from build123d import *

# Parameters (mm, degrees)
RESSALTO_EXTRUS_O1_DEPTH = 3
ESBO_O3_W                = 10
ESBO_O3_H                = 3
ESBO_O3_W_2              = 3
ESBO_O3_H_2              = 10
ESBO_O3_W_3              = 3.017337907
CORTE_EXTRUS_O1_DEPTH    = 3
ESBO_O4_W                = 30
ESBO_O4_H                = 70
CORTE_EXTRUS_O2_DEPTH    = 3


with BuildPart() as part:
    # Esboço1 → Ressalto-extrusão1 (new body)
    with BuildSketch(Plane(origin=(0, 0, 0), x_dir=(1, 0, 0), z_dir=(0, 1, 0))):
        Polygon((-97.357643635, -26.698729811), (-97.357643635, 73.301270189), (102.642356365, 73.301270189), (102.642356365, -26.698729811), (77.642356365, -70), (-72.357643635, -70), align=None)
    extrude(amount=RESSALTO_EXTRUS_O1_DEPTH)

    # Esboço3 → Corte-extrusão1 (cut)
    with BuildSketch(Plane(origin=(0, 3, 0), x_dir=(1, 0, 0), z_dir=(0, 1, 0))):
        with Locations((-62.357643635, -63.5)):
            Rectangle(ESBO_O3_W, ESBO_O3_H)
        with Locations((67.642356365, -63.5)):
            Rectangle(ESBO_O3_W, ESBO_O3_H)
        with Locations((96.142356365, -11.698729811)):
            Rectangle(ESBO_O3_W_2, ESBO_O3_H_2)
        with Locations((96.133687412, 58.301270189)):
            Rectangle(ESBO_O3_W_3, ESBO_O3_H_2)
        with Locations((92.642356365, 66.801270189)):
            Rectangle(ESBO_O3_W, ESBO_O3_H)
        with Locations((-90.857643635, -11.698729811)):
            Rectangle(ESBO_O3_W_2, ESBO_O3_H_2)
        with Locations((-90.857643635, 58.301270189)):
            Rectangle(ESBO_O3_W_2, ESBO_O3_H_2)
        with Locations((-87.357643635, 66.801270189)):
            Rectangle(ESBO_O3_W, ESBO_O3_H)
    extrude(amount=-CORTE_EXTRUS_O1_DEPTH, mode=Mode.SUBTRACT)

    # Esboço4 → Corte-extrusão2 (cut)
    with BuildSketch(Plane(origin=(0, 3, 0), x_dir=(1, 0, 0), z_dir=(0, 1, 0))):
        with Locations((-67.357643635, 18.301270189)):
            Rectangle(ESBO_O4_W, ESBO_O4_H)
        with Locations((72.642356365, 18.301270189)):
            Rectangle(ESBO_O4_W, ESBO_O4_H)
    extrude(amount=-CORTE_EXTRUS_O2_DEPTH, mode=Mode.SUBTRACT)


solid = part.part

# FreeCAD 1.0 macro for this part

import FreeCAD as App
import Part
import Sketcher
from FreeCAD import Vector
Q = App.Units.Quantity


def add_polygon(sketch, points):
    """Adds a closed chain of lines whose ends are joined by coincident constraints."""
    first, n = sketch.GeometryCount, len(points)
    for a, b in zip(points, points[1:] + points[:1]):
        sketch.addGeometry(Part.LineSegment(App.Vector(*a, 0), App.Vector(*b, 0)), False)
    for i in range(n):
        sketch.addConstraint(Sketcher.Constraint("Coincident", first + i, 2, first + (i + 1) % n, 1))

doc = App.newDocument("Part")
body = doc.addObject("PartDesign::Body", "Body")

# Sketch on XZ plane
sketch1 = body.newObject("Sketcher::SketchObject", "Sketch")
sketch1.AttachmentSupport = (doc.getObject("XZ_Plane"), [""])
sketch1.MapMode = "FlatFace"
add_polygon(sketch1, [(-97, -73), (-97, 27), (-72, 70), (78, 70), (103, 27), (103, -73)])  # lines 0-5
sketch1.addConstraint([
    Sketcher.Constraint("Vertical", 0),
    Sketcher.Constraint("Horizontal", 2),
    Sketcher.Constraint("Vertical", 4),
    Sketcher.Constraint("Horizontal", 5),
    Sketcher.Constraint("Horizontal", 0, 2, 3, 2),
    Sketcher.Constraint("Equal", 1, 3),
    Sketcher.Constraint("DistanceX", 2, 1, 2, 2, 150.0),
    Sketcher.Constraint("DistanceX", 5, 2, 5, 1, 200.0),
    Sketcher.Constraint("DistanceY", 0, 1, 0, 2, 100.0),
    Sketcher.Constraint("Angle", 1, Q("60 deg")),
    Sketcher.Constraint("DistanceY", -1, 1, 1, 2, 70.0),
    Sketcher.Constraint("DistanceX", 0, 2, -1, 1, 97.357644),
])
pad1 = body.newObject("PartDesign::Pad", "Pad")
pad1.Profile = sketch1
pad1.Length = 3
pad1.Reversed = True

# Sketch on XZ plane
sketch2 = body.newObject("Sketcher::SketchObject", "Sketch001")
sketch2.AttachmentSupport = (doc.getObject("XZ_Plane"), [""])
sketch2.MapMode = "FlatFace"
sketch2.AttachmentOffset = App.Placement(Vector(0, 0, -3), App.Rotation())
add_polygon(sketch2, [(-67.4, 62), (-67.4, 65), (-57.4, 65), (-57.4, 62)])  # lines 0-3
add_polygon(sketch2, [(62.6, 62), (62.6, 65), (72.6, 65), (72.6, 62)])  # lines 4-7
add_polygon(sketch2, [(94.6, 6.7), (94.6, 16.7), (97.6, 16.7), (97.6, 6.7)])  # lines 8-11
add_polygon(sketch2, [(94.6, -63.3), (94.6, -53.3), (97.6, -53.3), (97.6, -63.3)])  # lines 12-15
add_polygon(sketch2, [(87.6, -68.3), (87.6, -65.3), (97.6, -65.3), (97.6, -68.3)])  # lines 16-19
add_polygon(sketch2, [(-92.4, 6.7), (-92.4, 16.7), (-89.4, 16.7), (-89.4, 6.7)])  # lines 20-23
add_polygon(sketch2, [(-92.4, -63.3), (-92.4, -53.3), (-89.4, -53.3), (-89.4, -63.3)])  # lines 24-27
add_polygon(sketch2, [(-92.4, -68.3), (-92.4, -65.3), (-82.4, -65.3), (-82.4, -68.3)])  # lines 28-31
sketch2.addConstraint([
    Sketcher.Constraint("Vertical", 0),
    Sketcher.Constraint("Horizontal", 1),
    Sketcher.Constraint("Vertical", 2),
    Sketcher.Constraint("Horizontal", 3),
    Sketcher.Constraint("Vertical", 4),
    Sketcher.Constraint("Horizontal", 5),
    Sketcher.Constraint("Vertical", 6),
    Sketcher.Constraint("Horizontal", 7),
    Sketcher.Constraint("Vertical", 8),
    Sketcher.Constraint("Horizontal", 9),
    Sketcher.Constraint("Vertical", 10),
    Sketcher.Constraint("Horizontal", 11),
    Sketcher.Constraint("Vertical", 12),
    Sketcher.Constraint("Horizontal", 13),
    Sketcher.Constraint("Vertical", 14),
    Sketcher.Constraint("Horizontal", 15),
    Sketcher.Constraint("Vertical", 16),
    Sketcher.Constraint("Horizontal", 17),
    Sketcher.Constraint("Vertical", 18),
    Sketcher.Constraint("Horizontal", 19),
    Sketcher.Constraint("Vertical", 20),
    Sketcher.Constraint("Horizontal", 21),
    Sketcher.Constraint("Vertical", 22),
    Sketcher.Constraint("Horizontal", 23),
    Sketcher.Constraint("Vertical", 24),
    Sketcher.Constraint("Horizontal", 25),
    Sketcher.Constraint("Vertical", 26),
    Sketcher.Constraint("Horizontal", 27),
    Sketcher.Constraint("Vertical", 28),
    Sketcher.Constraint("Horizontal", 29),
    Sketcher.Constraint("Vertical", 30),
    Sketcher.Constraint("Horizontal", 31),
    Sketcher.Constraint("Horizontal", 1, 2, 4, 2),
    Sketcher.Constraint("Horizontal", 3, 2, 6, 2),
    Sketcher.Constraint("Horizontal", 9, 2, 20, 2),
    Sketcher.Constraint("Horizontal", 11, 2, 22, 2),
    Sketcher.Constraint("Horizontal", 13, 2, 24, 2),
    Sketcher.Constraint("Horizontal", 15, 2, 26, 2),
    Sketcher.Constraint("Horizontal", 17, 2, 28, 2),
    Sketcher.Constraint("Horizontal", 19, 2, 30, 2),
    Sketcher.Constraint("Vertical", 10, 2, 13, 2),
    Sketcher.Constraint("Vertical", 14, 2, 17, 2),
    Sketcher.Constraint("Vertical", 23, 2, 24, 2),
    Sketcher.Constraint("Vertical", 22, 2, 25, 2),
    Sketcher.Constraint("Vertical", 27, 2, 28, 2),
    Sketcher.Constraint("Equal", 3, 5),
    Sketcher.Constraint("Equal", 7, 17),
    Sketcher.Constraint("Equal", 11, 21),
    Sketcher.Constraint("Equal", 19, 29),
    Sketcher.Constraint("Equal", 27, 0),
    Sketcher.Constraint("Equal", 31, 8),
    Sketcher.Constraint("Equal", 10, 12),
    Sketcher.Constraint("Equal", 6, 16),
    Sketcher.Constraint("DistanceX", 1, 1, 1, 2, 10.0),
    Sketcher.Constraint("DistanceX", 9, 1, 9, 2, 3.0),
    Sketcher.Constraint("DistanceY", -1, 1, 0, 2, 65.0),
    Sketcher.Constraint("DistanceX", 1, 2, 4, 2, 120.0),
    Sketcher.Constraint("DistanceX", 6, 2, 8, 2, 22.0),
    Sketcher.Constraint("DistanceY", 12, 2, 11, 2, 60.0),
    Sketcher.Constraint("DistanceY", 16, 2, 15, 2, 2.0),
    Sketcher.Constraint("DistanceX", 20, 2, 3, 2, 25.0),
    Sketcher.Constraint("DistanceX", 13, 1, 13, 2, 3.017338),
    Sketcher.Constraint("DistanceY", -1, 1, 8, 2, 16.69873),
    Sketcher.Constraint("DistanceX", -1, 1, 12, 2, 94.625018),
])
pocket1 = body.newObject("PartDesign::Pocket", "Pocket")
pocket1.Profile = sketch2
pocket1.Length = 3
pocket1.Reversed = True

# Sketch on XZ plane
sketch3 = body.newObject("Sketcher::SketchObject", "Sketch002")
sketch3.AttachmentSupport = (doc.getObject("XZ_Plane"), [""])
sketch3.MapMode = "FlatFace"
sketch3.AttachmentOffset = App.Placement(Vector(0, 0, -3), App.Rotation())
add_polygon(sketch3, [(-82, -53), (-82, 17), (-52, 17), (-52, -53)])  # lines 0-3
add_polygon(sketch3, [(58, -53), (58, 17), (88, 17), (88, -53)])  # lines 4-7
sketch3.addConstraint([
    Sketcher.Constraint("Vertical", 0),
    Sketcher.Constraint("Horizontal", 1),
    Sketcher.Constraint("Vertical", 2),
    Sketcher.Constraint("Horizontal", 3),
    Sketcher.Constraint("Vertical", 4),
    Sketcher.Constraint("Horizontal", 5),
    Sketcher.Constraint("Vertical", 6),
    Sketcher.Constraint("Horizontal", 7),
    Sketcher.Constraint("Horizontal", 1, 2, 4, 2),
    Sketcher.Constraint("Horizontal", 3, 2, 6, 2),
    Sketcher.Constraint("Equal", 3, 5),
    Sketcher.Constraint("DistanceX", 1, 1, 1, 2, 30.0),
    Sketcher.Constraint("DistanceY", 0, 1, 0, 2, 70.0),
    Sketcher.Constraint("DistanceX", 1, 2, 4, 2, 110.0),
    Sketcher.Constraint("DistanceY", -1, 1, 0, 2, 16.69873),
    Sketcher.Constraint("DistanceX", 0, 2, -1, 1, 82.357644),
])
pocket2 = body.newObject("PartDesign::Pocket", "Pocket001")
pocket2.Profile = sketch3
pocket2.Length = 3
pocket2.Reversed = True

doc.recompute()
